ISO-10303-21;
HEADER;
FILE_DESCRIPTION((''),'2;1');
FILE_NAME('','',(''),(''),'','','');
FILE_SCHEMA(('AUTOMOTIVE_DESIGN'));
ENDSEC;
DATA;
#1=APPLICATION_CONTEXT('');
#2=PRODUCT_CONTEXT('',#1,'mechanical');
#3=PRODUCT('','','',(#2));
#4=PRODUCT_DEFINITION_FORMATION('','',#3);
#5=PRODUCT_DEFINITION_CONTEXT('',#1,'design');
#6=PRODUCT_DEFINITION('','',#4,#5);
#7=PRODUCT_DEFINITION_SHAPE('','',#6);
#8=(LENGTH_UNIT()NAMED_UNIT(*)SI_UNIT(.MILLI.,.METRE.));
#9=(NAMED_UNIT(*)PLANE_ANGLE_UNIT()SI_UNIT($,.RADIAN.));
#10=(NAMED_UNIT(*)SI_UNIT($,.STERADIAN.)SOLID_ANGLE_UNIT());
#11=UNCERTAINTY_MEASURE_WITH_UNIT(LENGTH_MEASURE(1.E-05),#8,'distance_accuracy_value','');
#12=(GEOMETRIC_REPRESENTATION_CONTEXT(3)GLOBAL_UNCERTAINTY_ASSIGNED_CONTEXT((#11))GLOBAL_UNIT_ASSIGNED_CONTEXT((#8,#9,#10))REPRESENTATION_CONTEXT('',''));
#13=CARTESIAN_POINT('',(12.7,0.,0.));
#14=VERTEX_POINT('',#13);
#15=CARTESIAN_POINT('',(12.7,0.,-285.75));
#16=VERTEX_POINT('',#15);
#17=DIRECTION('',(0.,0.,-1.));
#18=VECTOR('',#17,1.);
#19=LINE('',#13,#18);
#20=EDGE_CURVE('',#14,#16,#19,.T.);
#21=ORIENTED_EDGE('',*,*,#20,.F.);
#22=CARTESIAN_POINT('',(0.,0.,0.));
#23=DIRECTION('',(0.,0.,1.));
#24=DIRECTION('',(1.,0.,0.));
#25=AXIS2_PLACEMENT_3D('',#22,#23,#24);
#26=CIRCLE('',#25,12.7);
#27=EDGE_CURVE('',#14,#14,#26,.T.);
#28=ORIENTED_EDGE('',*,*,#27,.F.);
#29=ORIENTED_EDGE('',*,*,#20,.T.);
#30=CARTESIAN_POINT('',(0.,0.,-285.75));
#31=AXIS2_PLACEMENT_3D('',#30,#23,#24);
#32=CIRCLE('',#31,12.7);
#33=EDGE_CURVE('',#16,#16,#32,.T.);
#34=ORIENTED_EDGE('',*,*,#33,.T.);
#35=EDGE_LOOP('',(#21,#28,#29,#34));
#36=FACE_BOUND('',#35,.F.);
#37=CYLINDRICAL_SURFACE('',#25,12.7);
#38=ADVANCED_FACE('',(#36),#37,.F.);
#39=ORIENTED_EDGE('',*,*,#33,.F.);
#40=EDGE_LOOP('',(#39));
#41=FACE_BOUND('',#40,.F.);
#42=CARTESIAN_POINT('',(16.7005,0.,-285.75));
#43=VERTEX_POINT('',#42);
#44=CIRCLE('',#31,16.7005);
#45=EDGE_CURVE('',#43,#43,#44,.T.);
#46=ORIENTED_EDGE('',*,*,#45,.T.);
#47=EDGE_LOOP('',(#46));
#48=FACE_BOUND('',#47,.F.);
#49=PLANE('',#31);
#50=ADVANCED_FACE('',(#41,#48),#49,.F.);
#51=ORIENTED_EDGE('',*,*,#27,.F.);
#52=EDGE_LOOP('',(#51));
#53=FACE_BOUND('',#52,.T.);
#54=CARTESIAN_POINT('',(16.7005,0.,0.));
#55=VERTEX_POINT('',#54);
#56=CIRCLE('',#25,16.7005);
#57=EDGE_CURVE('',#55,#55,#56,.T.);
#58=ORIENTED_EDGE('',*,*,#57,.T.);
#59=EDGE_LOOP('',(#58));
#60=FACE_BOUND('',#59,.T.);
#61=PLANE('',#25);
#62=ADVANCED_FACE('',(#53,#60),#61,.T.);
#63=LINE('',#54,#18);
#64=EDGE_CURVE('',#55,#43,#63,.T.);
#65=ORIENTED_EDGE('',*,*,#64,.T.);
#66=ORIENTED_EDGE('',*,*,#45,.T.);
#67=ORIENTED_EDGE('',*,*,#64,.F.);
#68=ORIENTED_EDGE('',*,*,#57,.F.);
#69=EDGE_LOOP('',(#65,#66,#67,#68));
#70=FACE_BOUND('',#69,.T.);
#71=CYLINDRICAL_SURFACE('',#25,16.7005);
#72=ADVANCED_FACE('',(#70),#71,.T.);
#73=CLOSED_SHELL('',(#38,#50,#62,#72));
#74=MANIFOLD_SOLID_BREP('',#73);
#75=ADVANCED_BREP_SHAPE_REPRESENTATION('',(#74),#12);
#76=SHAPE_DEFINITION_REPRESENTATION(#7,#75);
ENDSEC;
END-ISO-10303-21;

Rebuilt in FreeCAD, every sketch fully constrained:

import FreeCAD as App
import Part
import Sketcher

V = App.Vector
Q = App.Units.Quantity

doc = App.newDocument("Part")
body = doc.addObject("PartDesign::Body", "Body")

sketch1 = doc.addObject("Sketcher::SketchObject", "Sketch")
body.addObject(sketch1)
sketch1.AttachmentSupport = (doc.XY_Plane, [""])
sketch1.MapMode = "FlatFace"
sketch1.addGeometry([
    Part.Circle(V(0, 0, 0), V(0, 0, 1), 17),
    Part.Circle(V(0, 0, 0), V(0, 0, 1), 13),
], False)
sketch1.addConstraint([
    Sketcher.Constraint("Coincident", 0, 3, -1, 1),
    Sketcher.Constraint("Coincident", 1, 3, -1, 1),
    Sketcher.Constraint("Diameter", 1, Q("1 in")),
    Sketcher.Constraint("Diameter", 0, Q("1.315 in")),
])
pad1 = doc.addObject("PartDesign::Pad", "Pad")
body.addObject(pad1)
pad1.Profile = sketch1
pad1.Length = Q("11.25 in")
pad1.Reversed = True

doc.recompute()
